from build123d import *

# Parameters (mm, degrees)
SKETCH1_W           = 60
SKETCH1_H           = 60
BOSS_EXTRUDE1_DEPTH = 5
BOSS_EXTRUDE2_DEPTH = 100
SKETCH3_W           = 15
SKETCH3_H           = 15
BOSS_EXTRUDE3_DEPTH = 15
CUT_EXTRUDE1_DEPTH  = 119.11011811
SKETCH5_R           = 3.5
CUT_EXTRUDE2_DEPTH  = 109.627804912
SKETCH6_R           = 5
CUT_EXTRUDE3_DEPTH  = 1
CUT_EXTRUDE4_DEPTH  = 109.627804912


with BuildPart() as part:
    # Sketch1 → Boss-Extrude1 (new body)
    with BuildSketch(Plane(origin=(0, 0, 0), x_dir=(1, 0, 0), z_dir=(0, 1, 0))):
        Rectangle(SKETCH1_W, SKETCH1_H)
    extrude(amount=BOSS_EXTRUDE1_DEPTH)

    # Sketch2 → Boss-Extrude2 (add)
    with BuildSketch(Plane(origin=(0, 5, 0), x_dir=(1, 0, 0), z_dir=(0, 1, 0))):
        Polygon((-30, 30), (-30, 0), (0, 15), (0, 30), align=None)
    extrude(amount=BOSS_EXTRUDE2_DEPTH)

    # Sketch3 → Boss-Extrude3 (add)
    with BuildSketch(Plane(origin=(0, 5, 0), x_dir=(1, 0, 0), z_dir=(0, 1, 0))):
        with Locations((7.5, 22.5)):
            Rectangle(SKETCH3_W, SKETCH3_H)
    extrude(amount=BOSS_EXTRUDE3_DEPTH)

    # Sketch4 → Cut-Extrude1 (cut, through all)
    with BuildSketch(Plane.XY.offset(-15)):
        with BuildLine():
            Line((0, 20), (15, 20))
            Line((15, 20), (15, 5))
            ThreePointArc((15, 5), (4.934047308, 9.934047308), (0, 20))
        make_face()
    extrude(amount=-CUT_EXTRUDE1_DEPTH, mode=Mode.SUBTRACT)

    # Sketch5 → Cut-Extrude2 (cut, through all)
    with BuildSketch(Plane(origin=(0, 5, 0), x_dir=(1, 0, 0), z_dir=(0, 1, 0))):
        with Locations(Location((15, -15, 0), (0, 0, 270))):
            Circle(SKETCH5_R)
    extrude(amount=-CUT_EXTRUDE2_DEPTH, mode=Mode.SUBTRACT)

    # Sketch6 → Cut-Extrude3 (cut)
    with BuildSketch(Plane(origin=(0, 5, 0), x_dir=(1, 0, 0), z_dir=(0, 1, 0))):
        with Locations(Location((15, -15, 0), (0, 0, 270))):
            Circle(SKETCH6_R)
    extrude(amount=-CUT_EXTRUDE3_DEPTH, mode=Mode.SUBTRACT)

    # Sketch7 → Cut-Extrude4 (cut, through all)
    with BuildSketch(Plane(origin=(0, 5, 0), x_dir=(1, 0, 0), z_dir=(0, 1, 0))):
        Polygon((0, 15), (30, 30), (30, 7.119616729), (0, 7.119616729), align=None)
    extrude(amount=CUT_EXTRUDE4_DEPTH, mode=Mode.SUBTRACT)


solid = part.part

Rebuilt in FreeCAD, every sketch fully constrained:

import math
import FreeCAD as App
import Part
import Sketcher

V = App.Vector
Q = App.Units.Quantity


def add_polygon(sketch, points):
    """Adds a closed chain of lines whose ends are joined by coincident constraints."""
    first, n = sketch.GeometryCount, len(points)
    for a, b in zip(points, points[1:] + points[:1]):
        sketch.addGeometry(Part.LineSegment(App.Vector(*a, 0), App.Vector(*b, 0)), False)
    for i in range(n):
        sketch.addConstraint(Sketcher.Constraint("Coincident", first + i, 2, first + (i + 1) % n, 1))

doc = App.newDocument("Part")
body = doc.addObject("PartDesign::Body", "Body")

# Sketch on XZ plane
sketch1 = body.newObject("Sketcher::SketchObject", "Sketch")
sketch1.AttachmentSupport = (doc.getObject("XZ_Plane"), [""])
sketch1.MapMode = "FlatFace"
add_polygon(sketch1, [(-30, -30), (-30, 30), (30, 30), (30, -30)])  # lines 0-3
sketch1.addConstraint(Sketcher.Constraint("Vertical", 0))
sketch1.addConstraint(Sketcher.Constraint("Horizontal", 1))
sketch1.addConstraint(Sketcher.Constraint("Vertical", 2))
sketch1.addConstraint(Sketcher.Constraint("Horizontal", 3))
sketch1.addConstraint(Sketcher.Constraint("Symmetric", 0, 2, 2, 2, -1, 1))
sketch1.addConstraint(Sketcher.Constraint("Equal", 3, 0))
sketch1.addConstraint(Sketcher.Constraint("DistanceX", 1, 1, 1, 2, Q("60 mm")))
pad1 = body.newObject("PartDesign::Pad", "Pad")
pad1.Profile = sketch1
pad1.Length = 5
pad1.Reversed = True

# Sketch on XZ plane
sketch2 = body.newObject("Sketcher::SketchObject", "Sketch001")
sketch2.AttachmentSupport = (doc.getObject("XZ_Plane"), [""])
sketch2.MapMode = "FlatFace"
sketch2.AttachmentOffset = App.Placement(V(0, 0, -5), App.Rotation())
add_polygon(sketch2, [(-30, -30), (-30, 0), (0, -15), (0, -30)])  # lines 0-3
sketch2.addConstraint(Sketcher.Constraint("Vertical", 0))
sketch2.addConstraint(Sketcher.Constraint("Vertical", 2))
sketch2.addConstraint(Sketcher.Constraint("Horizontal", 3))
sketch2.addConstraint(Sketcher.Constraint("PointOnObject", 0, 2, -1))
sketch2.addConstraint(Sketcher.Constraint("PointOnObject", 1, 2, -2))
sketch2.addConstraint(Sketcher.Constraint("Equal", 3, 0))
sketch2.addConstraint(Sketcher.Constraint("DistanceX", 3, 2, 3, 1, Q("30 mm")))
sketch2.addConstraint(Sketcher.Constraint("DistanceY", 2, 2, 2, 1, Q("15 mm")))
pad2 = body.newObject("PartDesign::Pad", "Pad001")
pad2.Profile = sketch2
pad2.Length = 100
pad2.Reversed = True

# Sketch on XZ plane
sketch3 = body.newObject("Sketcher::SketchObject", "Sketch002")
sketch3.AttachmentSupport = (doc.getObject("XZ_Plane"), [""])
sketch3.MapMode = "FlatFace"
sketch3.AttachmentOffset = App.Placement(V(0, 0, -5), App.Rotation())
add_polygon(sketch3, [(0, -30), (0, -15), (15, -15), (15, -30)])  # lines 0-3
sketch3.addConstraint(Sketcher.Constraint("Vertical", 0))
sketch3.addConstraint(Sketcher.Constraint("Horizontal", 1))
sketch3.addConstraint(Sketcher.Constraint("Vertical", 2))
sketch3.addConstraint(Sketcher.Constraint("Horizontal", 3))
sketch3.addConstraint(Sketcher.Constraint("PointOnObject", 0, 2, -2))
sketch3.addConstraint(Sketcher.Constraint("Equal", 3, 0))
sketch3.addConstraint(Sketcher.Constraint("DistanceX", 1, 1, 1, 2, Q("15 mm")))
sketch3.addConstraint(Sketcher.Constraint("DistanceY", 0, 2, -1, 1, Q("15 mm")))
pad3 = body.newObject("PartDesign::Pad", "Pad002")
pad3.Profile = sketch3
pad3.Length = 15
pad3.Reversed = True

# Sketch on XY plane
sketch4 = body.newObject("Sketcher::SketchObject", "Sketch003")
sketch4.AttachmentSupport = (doc.getObject("XY_Plane"), [""])
sketch4.MapMode = "FlatFace"
sketch4.AttachmentOffset = App.Placement(V(0, 0, -15), App.Rotation())
sketch4.addGeometry(Part.LineSegment(V(15, 20, 0), V(0, 20, 0)), False)
sketch4.addGeometry(Part.ArcOfCircle(Part.Circle(V(17.177865, 22.177865, 0), V(0, 0, 1), 17.315373), math.radians(-172.774407), math.radians(-97.225593)), False)
sketch4.addGeometry(Part.LineSegment(V(15, 5, 0), V(15, 20, 0)), False)
sketch4.addConstraint(Sketcher.Constraint("Coincident", 0, 2, 1, 1))
sketch4.addConstraint(Sketcher.Constraint("Coincident", 1, 2, 2, 1))
sketch4.addConstraint(Sketcher.Constraint("Coincident", 2, 2, 0, 1))
sketch4.addConstraint(Sketcher.Constraint("Horizontal", 0))
sketch4.addConstraint(Sketcher.Constraint("Vertical", 2))
sketch4.addConstraint(Sketcher.Constraint("PointOnObject", 0, 2, -2))
sketch4.addConstraint(Sketcher.Constraint("Equal", 0, 2))
sketch4.addConstraint(Sketcher.Constraint("DistanceX", 0, 2, 0, 1, Q("15 mm")))
sketch4.addConstraint(Sketcher.Constraint("DistanceY", -1, 1, 0, 2, Q("20 mm")))
sketch4.addConstraint(Sketcher.Constraint("Radius", 1, Q("17.315373 mm")))
pocket1 = body.newObject("PartDesign::Pocket", "Pocket")
pocket1.Profile = sketch4
pocket1.Type = "ThroughAll"

# Sketch on XZ plane
sketch5 = body.newObject("Sketcher::SketchObject", "Sketch004")
sketch5.AttachmentSupport = (doc.getObject("XZ_Plane"), [""])
sketch5.MapMode = "FlatFace"
sketch5.AttachmentOffset = App.Placement(V(0, 0, -5), App.Rotation())
sketch5.addGeometry(Part.Circle(V(15, 15, 0), V(0, 0, 1), 3.5), False)
sketch5.addConstraint(Sketcher.Constraint("Diameter", 0, Q("7 mm")))
sketch5.addConstraint(Sketcher.Constraint("DistanceX", -1, 1, 0, 3, Q("15 mm")))
sketch5.addConstraint(Sketcher.Constraint("DistanceY", -1, 1, 0, 3, Q("15 mm")))
pocket2 = body.newObject("PartDesign::Pocket", "Pocket001")
pocket2.Profile = sketch5
pocket2.Type = "ThroughAll"
pocket2.Reversed = True

# Sketch on XZ plane
sketch6 = body.newObject("Sketcher::SketchObject", "Sketch005")
sketch6.AttachmentSupport = (doc.getObject("XZ_Plane"), [""])
sketch6.MapMode = "FlatFace"
sketch6.AttachmentOffset = App.Placement(V(0, 0, -5), App.Rotation())
sketch6.addGeometry(Part.Circle(V(15, 15, 0), V(0, 0, 1), 5), False)
sketch6.addConstraint(Sketcher.Constraint("Diameter", 0, Q("10 mm")))
sketch6.addConstraint(Sketcher.Constraint("DistanceX", -1, 1, 0, 3, Q("15 mm")))
sketch6.addConstraint(Sketcher.Constraint("DistanceY", -1, 1, 0, 3, Q("15 mm")))
pocket3 = body.newObject("PartDesign::Pocket", "Pocket002")
pocket3.Profile = sketch6
pocket3.Length = 1
pocket3.Reversed = True

# Sketch on XZ plane
sketch7 = body.newObject("Sketcher::SketchObject", "Sketch006")
sketch7.AttachmentSupport = (doc.getObject("XZ_Plane"), [""])
sketch7.MapMode = "FlatFace"
sketch7.AttachmentOffset = App.Placement(V(0, 0, -5), App.Rotation())
add_polygon(sketch7, [(30, -30), (0, -15), (0, -7.119617), (30, -7.119617)])  # lines 0-3
sketch7.addConstraint(Sketcher.Constraint("Vertical", 1))
sketch7.addConstraint(Sketcher.Constraint("Horizontal", 2))
sketch7.addConstraint(Sketcher.Constraint("Vertical", 3))
sketch7.addConstraint(Sketcher.Constraint("PointOnObject", 0, 2, -2))
sketch7.addConstraint(Sketcher.Constraint("DistanceX", 2, 1, 2, 2, Q("30 mm")))
sketch7.addConstraint(Sketcher.Constraint("DistanceY", 0, 2, -1, 1, Q("15 mm")))
sketch7.addConstraint(Sketcher.Constraint("DistanceY", 3, 2, -1, 1, Q("30 mm")))
sketch7.addConstraint(Sketcher.Constraint("DistanceY", 1, 1, 1, 2, Q("7.880383 mm")))
pocket4 = body.newObject("PartDesign::Pocket", "Pocket003")
pocket4.Profile = sketch7
pocket4.Type = "ThroughAll"

doc.recompute()
